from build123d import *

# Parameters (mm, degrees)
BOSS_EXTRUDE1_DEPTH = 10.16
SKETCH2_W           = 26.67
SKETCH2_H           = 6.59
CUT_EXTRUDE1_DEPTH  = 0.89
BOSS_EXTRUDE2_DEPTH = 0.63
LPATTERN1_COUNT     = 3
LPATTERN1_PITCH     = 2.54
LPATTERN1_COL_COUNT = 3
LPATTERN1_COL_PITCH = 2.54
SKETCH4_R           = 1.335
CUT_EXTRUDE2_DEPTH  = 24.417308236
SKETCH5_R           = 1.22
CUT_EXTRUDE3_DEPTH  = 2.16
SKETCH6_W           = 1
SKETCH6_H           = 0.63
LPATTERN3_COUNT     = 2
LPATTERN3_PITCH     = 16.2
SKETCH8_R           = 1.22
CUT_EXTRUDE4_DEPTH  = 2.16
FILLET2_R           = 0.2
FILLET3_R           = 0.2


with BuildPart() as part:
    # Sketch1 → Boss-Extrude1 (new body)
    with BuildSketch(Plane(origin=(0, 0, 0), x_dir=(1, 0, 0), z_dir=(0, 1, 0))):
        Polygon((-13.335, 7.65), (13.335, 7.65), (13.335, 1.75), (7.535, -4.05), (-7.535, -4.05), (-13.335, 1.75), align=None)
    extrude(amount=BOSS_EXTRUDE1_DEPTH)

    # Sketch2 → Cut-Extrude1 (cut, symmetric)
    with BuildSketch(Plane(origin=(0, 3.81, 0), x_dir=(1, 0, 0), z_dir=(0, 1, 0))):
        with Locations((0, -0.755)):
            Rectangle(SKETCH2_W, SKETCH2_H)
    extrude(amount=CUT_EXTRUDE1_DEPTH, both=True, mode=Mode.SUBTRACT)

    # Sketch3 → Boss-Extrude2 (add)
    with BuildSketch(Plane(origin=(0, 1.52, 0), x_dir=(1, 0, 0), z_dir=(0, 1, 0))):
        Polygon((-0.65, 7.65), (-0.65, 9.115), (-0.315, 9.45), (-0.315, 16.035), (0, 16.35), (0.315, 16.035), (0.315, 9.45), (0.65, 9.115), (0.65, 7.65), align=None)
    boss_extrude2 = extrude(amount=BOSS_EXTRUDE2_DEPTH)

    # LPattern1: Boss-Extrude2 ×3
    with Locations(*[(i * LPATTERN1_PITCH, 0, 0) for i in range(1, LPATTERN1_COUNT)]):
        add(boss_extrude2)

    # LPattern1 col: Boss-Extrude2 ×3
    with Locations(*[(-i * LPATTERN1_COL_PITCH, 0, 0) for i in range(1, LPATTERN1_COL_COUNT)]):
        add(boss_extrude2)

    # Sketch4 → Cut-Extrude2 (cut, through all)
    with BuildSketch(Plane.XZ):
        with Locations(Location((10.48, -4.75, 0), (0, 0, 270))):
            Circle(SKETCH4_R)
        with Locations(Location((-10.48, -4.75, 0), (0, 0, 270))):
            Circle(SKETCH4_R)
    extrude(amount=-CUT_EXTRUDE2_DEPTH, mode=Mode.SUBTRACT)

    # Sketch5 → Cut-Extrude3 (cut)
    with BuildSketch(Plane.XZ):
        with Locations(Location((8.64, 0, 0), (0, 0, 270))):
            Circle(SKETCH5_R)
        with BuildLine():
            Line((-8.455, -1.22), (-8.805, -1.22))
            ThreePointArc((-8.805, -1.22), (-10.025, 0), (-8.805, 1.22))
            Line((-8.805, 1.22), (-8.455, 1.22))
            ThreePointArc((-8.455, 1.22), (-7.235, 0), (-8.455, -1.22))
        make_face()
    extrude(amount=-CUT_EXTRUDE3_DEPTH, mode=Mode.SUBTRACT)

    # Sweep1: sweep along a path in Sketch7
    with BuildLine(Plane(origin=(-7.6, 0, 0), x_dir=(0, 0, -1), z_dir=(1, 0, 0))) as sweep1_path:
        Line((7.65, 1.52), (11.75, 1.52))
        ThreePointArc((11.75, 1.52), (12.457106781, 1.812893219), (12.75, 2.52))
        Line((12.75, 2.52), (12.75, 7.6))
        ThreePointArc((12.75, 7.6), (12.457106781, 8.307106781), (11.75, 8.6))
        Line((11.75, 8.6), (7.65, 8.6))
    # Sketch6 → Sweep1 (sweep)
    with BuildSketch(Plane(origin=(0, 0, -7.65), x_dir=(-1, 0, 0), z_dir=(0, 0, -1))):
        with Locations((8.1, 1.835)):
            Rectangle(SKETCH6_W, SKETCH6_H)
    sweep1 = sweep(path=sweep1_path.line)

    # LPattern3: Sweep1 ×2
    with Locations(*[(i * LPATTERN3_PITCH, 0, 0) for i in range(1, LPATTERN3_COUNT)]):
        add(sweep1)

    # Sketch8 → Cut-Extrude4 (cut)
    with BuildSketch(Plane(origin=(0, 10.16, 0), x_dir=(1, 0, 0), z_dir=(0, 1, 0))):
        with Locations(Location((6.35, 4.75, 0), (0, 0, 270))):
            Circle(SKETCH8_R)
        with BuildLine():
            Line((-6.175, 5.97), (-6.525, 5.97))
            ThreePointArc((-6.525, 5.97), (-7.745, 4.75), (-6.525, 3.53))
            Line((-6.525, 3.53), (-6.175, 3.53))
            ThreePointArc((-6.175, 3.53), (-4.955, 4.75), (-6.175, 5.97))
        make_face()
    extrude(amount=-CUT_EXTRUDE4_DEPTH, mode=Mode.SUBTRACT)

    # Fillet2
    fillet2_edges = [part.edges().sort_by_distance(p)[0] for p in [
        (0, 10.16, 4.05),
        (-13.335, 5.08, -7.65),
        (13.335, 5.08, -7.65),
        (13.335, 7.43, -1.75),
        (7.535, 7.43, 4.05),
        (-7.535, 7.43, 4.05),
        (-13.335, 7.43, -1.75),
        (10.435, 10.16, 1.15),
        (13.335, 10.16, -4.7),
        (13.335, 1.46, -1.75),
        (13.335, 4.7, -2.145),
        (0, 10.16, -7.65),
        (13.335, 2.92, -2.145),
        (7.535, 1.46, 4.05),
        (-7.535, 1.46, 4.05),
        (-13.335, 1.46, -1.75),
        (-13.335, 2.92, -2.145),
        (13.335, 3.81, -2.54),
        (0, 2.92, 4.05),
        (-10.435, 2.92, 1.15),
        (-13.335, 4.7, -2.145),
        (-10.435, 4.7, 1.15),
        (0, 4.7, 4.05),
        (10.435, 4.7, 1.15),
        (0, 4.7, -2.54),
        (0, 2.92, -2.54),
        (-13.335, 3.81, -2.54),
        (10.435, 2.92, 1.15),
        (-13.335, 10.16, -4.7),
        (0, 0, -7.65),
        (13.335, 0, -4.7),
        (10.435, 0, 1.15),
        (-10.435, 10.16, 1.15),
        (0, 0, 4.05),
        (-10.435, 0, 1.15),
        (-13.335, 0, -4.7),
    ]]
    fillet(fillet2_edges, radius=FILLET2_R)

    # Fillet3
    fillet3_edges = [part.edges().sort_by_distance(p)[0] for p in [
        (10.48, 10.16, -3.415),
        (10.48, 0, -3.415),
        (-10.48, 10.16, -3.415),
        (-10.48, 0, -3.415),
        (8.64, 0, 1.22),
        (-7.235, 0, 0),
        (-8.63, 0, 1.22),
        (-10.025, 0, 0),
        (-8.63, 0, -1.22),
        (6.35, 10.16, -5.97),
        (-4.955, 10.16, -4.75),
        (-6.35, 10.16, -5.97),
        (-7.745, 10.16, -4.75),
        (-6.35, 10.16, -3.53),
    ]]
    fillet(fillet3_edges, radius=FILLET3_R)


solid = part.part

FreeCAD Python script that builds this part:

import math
import FreeCAD as App
import Part
import Sketcher

V = App.Vector


def edges_at(feature, points):
    """Names of the edges that pass closest to the given points."""
    edges = feature.Shape.Edges
    near = lambda p: min(range(len(edges)), key=lambda i: edges[i].distToShape(Part.Vertex(*p))[0])
    return sorted({f"Edge{near(p) + 1}" for p in points})

doc = App.newDocument("Part")
params = doc.addObject("Spreadsheet::Sheet", "Params")
for row, (alias, value) in enumerate([
    ("sketch1_height", "5.9 mm"),
    ("sketch1_width", "26.67 mm"),
    ("sketch1_width2", "15.07 mm"),
    ("pad1_length", "10.16 mm"),
    ("sketch2_width", "26.67 mm"),
    ("sketch2_height", "6.59 mm"),
    ("pocket1_length", "1.78 mm"),
    ("sketch3_width", "1.3 mm"),
    ("pad2_length", "0.63 mm"),
    ("linearpattern_pitch", "2.54 mm"),
    ("linearpattern2_pitch", "2.54 mm"),
    ("sketch4_diameter", "2.67 mm"),
    ("sketch5_diameter", "2.44 mm"),
    ("sketch5_width", "0.35 mm"),
    ("pocket3_length", "2.16 mm"),
    ("sketch6_width", "1 mm"),
    ("sketch6_height", "0.63 mm"),
    ("sketch7_radius", "1 mm"),
    ("sketch7_height", "4.1 mm"),
    ("sketch7_width", "5.08 mm"),
    ("linearpattern3_pitch", "16.2 mm"),
    ("sketch8_diameter", "2.44 mm"),
    ("sketch8_width", "0.35 mm"),
    ("pocket4_length", "2.16 mm"),
    ("fillet_radius", "0.2 mm"),
    ("fillet2_radius", "0.2 mm"),
], start=1):
    params.set(f"A{row}", alias)
    params.set(f"B{row}", "=" + value)
    params.setAlias(f"B{row}", alias)

body = doc.addObject("PartDesign::Body", "Body")

# Sketch on XZ plane
sketch1 = doc.addObject("Sketcher::SketchObject", "Sketch")
body.addObject(sketch1)
sketch1.AttachmentSupport = (doc.XZ_Plane, [""])
sketch1.MapMode = "FlatFace"
sketch1.addGeometry(Part.LineSegment(V(13, -8, 0), V(-13, -8, 0)), False)
sketch1.addGeometry(Part.LineSegment(V(-13, -8, 0), V(-13, -2, 0)), False)
sketch1.addGeometry(Part.LineSegment(V(-13, -2, 0), V(-8, 4, 0)), False)
sketch1.addGeometry(Part.LineSegment(V(-8, 4, 0), V(8, 4, 0)), False)
sketch1.addGeometry(Part.LineSegment(V(8, 4, 0), V(13, -2, 0)), False)
sketch1.addGeometry(Part.LineSegment(V(13, -2, 0), V(13, -8, 0)), False)
sketch1.addConstraint(Sketcher.Constraint("Coincident", 0, 2, 1, 1))
sketch1.addConstraint(Sketcher.Constraint("Coincident", 1, 2, 2, 1))
sketch1.addConstraint(Sketcher.Constraint("Coincident", 2, 2, 3, 1))
sketch1.addConstraint(Sketcher.Constraint("Coincident", 3, 2, 4, 1))
sketch1.addConstraint(Sketcher.Constraint("Coincident", 4, 2, 5, 1))
sketch1.addConstraint(Sketcher.Constraint("Coincident", 5, 2, 0, 1))
sketch1.addConstraint(Sketcher.Constraint("Horizontal", 0))
sketch1.addConstraint(Sketcher.Constraint("Vertical", 1))
sketch1.addConstraint(Sketcher.Constraint("Horizontal", 3))
sketch1.addConstraint(Sketcher.Constraint("Vertical", 5))
sketch1.addConstraint(Sketcher.Constraint("Symmetric", 1, 2, 4, 2, -2))
sketch1.addConstraint(Sketcher.Constraint("Perpendicular", 2, 4))
sketch1.addConstraint(Sketcher.Constraint("Equal", 2, 4))
sketch1.addConstraint(Sketcher.Constraint("DistanceY", 1, 1, 1, 2, 5.9))
sketch1.addConstraint(Sketcher.Constraint("DistanceX", 0, 2, 0, 1, 26.67))
sketch1.addConstraint(Sketcher.Constraint("DistanceX", 3, 1, 3, 2, 15.07))
sketch1.addConstraint(Sketcher.Constraint("DistanceY", 0, 2, -1, 1, 7.65))
sketch1.setExpression("Constraints[13]", "Params.sketch1_height")
sketch1.setExpression("Constraints[14]", "Params.sketch1_width")
sketch1.setExpression("Constraints[15]", "Params.sketch1_width2")
pad1 = doc.addObject("PartDesign::Pad", "Pad")
body.addObject(pad1)
pad1.Profile = sketch1
pad1.setExpression("Length", "Params.pad1_length")
pad1.Reversed = True

# Sketch on XZ plane
sketch2 = doc.addObject("Sketcher::SketchObject", "Sketch001")
body.addObject(sketch2)
sketch2.AttachmentSupport = (doc.XZ_Plane, [""])
sketch2.MapMode = "FlatFace"
sketch2.AttachmentOffset = App.Placement(V(0, 0, -3.81), App.Rotation())
sketch2.addGeometry(Part.LineSegment(V(-13, -3, 0), V(-13, 4, 0)), False)
sketch2.addGeometry(Part.LineSegment(V(-13, 4, 0), V(13, 4, 0)), False)
sketch2.addGeometry(Part.LineSegment(V(13, 4, 0), V(13, -3, 0)), False)
sketch2.addGeometry(Part.LineSegment(V(13, -3, 0), V(-13, -3, 0)), False)
sketch2.addConstraint(Sketcher.Constraint("Coincident", 0, 2, 1, 1))
sketch2.addConstraint(Sketcher.Constraint("Coincident", 1, 2, 2, 1))
sketch2.addConstraint(Sketcher.Constraint("Coincident", 2, 2, 3, 1))
sketch2.addConstraint(Sketcher.Constraint("Coincident", 3, 2, 0, 1))
sketch2.addConstraint(Sketcher.Constraint("Vertical", 0))
sketch2.addConstraint(Sketcher.Constraint("Horizontal", 1))
sketch2.addConstraint(Sketcher.Constraint("Vertical", 2))
sketch2.addConstraint(Sketcher.Constraint("Horizontal", 3))
sketch2.addConstraint(Sketcher.Constraint("DistanceX", 1, 1, 1, 2, 26.67))
sketch2.addConstraint(Sketcher.Constraint("DistanceY", 0, 1, 0, 2, 6.59))
sketch2.addConstraint(Sketcher.Constraint("DistanceY", -1, 1, 0, 2, 4.05))
sketch2.addConstraint(Sketcher.Constraint("DistanceX", 0, 2, -1, 1, 13.335))
sketch2.setExpression("Constraints[8]", "Params.sketch2_width")
sketch2.setExpression("Constraints[9]", "Params.sketch2_height")
pocket1 = doc.addObject("PartDesign::Pocket", "Pocket")
body.addObject(pocket1)
pocket1.Profile = sketch2
pocket1.setExpression("Length", "Params.pocket1_length")
pocket1.Midplane = True

# Sketch on XZ plane
sketch3 = doc.addObject("Sketcher::SketchObject", "Sketch002")
body.addObject(sketch3)
sketch3.AttachmentSupport = (doc.XZ_Plane, [""])
sketch3.MapMode = "FlatFace"
sketch3.AttachmentOffset = App.Placement(V(0, 0, -1.52), App.Rotation())
sketch3.addGeometry(Part.LineSegment(V(-0.65, -9.12, 0), V(-0.65, -7.65, 0)), False)
sketch3.addGeometry(Part.LineSegment(V(-0.65, -7.65, 0), V(0.65, -7.65, 0)), False)
sketch3.addGeometry(Part.LineSegment(V(0.65, -7.65, 0), V(0.65, -9.12, 0)), False)
sketch3.addGeometry(Part.LineSegment(V(0.65, -9.12, 0), V(0.32, -9.45, 0)), False)
sketch3.addGeometry(Part.LineSegment(V(0.32, -9.45, 0), V(0.32, -16.04, 0)), False)
sketch3.addGeometry(Part.LineSegment(V(0.32, -16.04, 0), V(0, -16.35, 0)), False)
sketch3.addGeometry(Part.LineSegment(V(0, -16.35, 0), V(-0.32, -16.04, 0)), False)
sketch3.addGeometry(Part.LineSegment(V(-0.32, -16.04, 0), V(-0.32, -9.45, 0)), False)
sketch3.addGeometry(Part.LineSegment(V(-0.32, -9.45, 0), V(-0.65, -9.12, 0)), False)
sketch3.addConstraint(Sketcher.Constraint("Coincident", 0, 2, 1, 1))
sketch3.addConstraint(Sketcher.Constraint("Coincident", 1, 2, 2, 1))
sketch3.addConstraint(Sketcher.Constraint("Coincident", 2, 2, 3, 1))
sketch3.addConstraint(Sketcher.Constraint("Coincident", 3, 2, 4, 1))
sketch3.addConstraint(Sketcher.Constraint("Coincident", 4, 2, 5, 1))
sketch3.addConstraint(Sketcher.Constraint("Coincident", 5, 2, 6, 1))
sketch3.addConstraint(Sketcher.Constraint("Coincident", 6, 2, 7, 1))
sketch3.addConstraint(Sketcher.Constraint("Coincident", 7, 2, 8, 1))
sketch3.addConstraint(Sketcher.Constraint("Coincident", 8, 2, 0, 1))
sketch3.addConstraint(Sketcher.Constraint("Vertical", 0))
sketch3.addConstraint(Sketcher.Constraint("Horizontal", 1))
sketch3.addConstraint(Sketcher.Constraint("Vertical", 2))
sketch3.addConstraint(Sketcher.Constraint("Vertical", 4))
sketch3.addConstraint(Sketcher.Constraint("Vertical", 7))
sketch3.addConstraint(Sketcher.Constraint("Symmetric", 4, 2, 6, 2, -2))
sketch3.addConstraint(Sketcher.Constraint("Symmetric", 2, 2, 8, 2, -2))
sketch3.addConstraint(Sketcher.Constraint("PointOnObject", 5, 2, -2))
sketch3.addConstraint(Sketcher.Constraint("Parallel", 3, 5))
sketch3.addConstraint(Sketcher.Constraint("Perpendicular", 5, 6))
sketch3.addConstraint(Sketcher.Constraint("Parallel", 6, 8))
sketch3.addConstraint(Sketcher.Constraint("DistanceX", 1, 1, 1, 2, 1.3))
sketch3.addConstraint(Sketcher.Constraint("DistanceY", 3, 2, 1, 2, 1.8))
sketch3.addConstraint(Sketcher.Constraint("DistanceY", 5, 2, 3, 2, 6.9))
sketch3.addConstraint(Sketcher.Constraint("DistanceY", 0, 1, 0, 2, 1.465))
sketch3.addConstraint(Sketcher.Constraint("DistanceY", 0, 2, -1, 1, 7.65))
sketch3.setExpression("Constraints[20]", "Params.sketch3_width")
pad2 = doc.addObject("PartDesign::Pad", "Pad001")
body.addObject(pad2)
pad2.Profile = sketch3
pad2.setExpression("Length", "Params.pad2_length")
pad2.Reversed = True
doc.recompute()

linearpattern = doc.addObject("PartDesign::LinearPattern", "LinearPattern")
body.addObject(linearpattern)
linearpattern.Originals = [pad2]
linearpattern.Direction = (doc.X_Axis, [""])
linearpattern.Mode = "offset"
linearpattern.setExpression("Offset", "Params.linearpattern_pitch")
linearpattern.Occurrences = 3
body.Tip = linearpattern
doc.recompute()

linearpattern2 = doc.addObject("PartDesign::LinearPattern", "LinearPattern001")
body.addObject(linearpattern2)
linearpattern2.Originals = [pad2]
linearpattern2.Direction = (doc.X_Axis, [""])
linearpattern2.Mode = "offset"
linearpattern2.setExpression("Offset", "Params.linearpattern2_pitch")
linearpattern2.Occurrences = 3
linearpattern2.Reversed = True
body.Tip = linearpattern2

# Sketch on XZ plane
sketch4 = doc.addObject("Sketcher::SketchObject", "Sketch003")
body.addObject(sketch4)
sketch4.AttachmentSupport = (doc.XZ_Plane, [""])
sketch4.MapMode = "FlatFace"
sketch4.addGeometry(Part.Circle(V(10.5, -4.8, 0), V(0, 0, 1), 1.3), False)
sketch4.addGeometry(Part.Circle(V(-10.5, -4.8, 0), V(0, 0, 1), 1.3), False)
sketch4.addConstraint(Sketcher.Constraint("Equal", 0, 1))
sketch4.addConstraint(Sketcher.Constraint("Symmetric", 0, 3, 1, 3, -2))
sketch4.addConstraint(Sketcher.Constraint("Diameter", 0, 2.67))
sketch4.addConstraint(Sketcher.Constraint("DistanceX", -1, 1, 0, 3, 10.48))
sketch4.addConstraint(Sketcher.Constraint("DistanceY", 0, 3, -1, 1, 4.75))
sketch4.setExpression("Constraints[2]", "Params.sketch4_diameter")
pocket2 = doc.addObject("PartDesign::Pocket", "Pocket001")
body.addObject(pocket2)
pocket2.Profile = sketch4
pocket2.Type = "ThroughAll"

# Sketch on XZ plane
sketch5 = doc.addObject("Sketcher::SketchObject", "Sketch004")
body.addObject(sketch5)
sketch5.AttachmentSupport = (doc.XZ_Plane, [""])
sketch5.MapMode = "FlatFace"
sketch5.addGeometry(Part.Circle(V(8.64, 0, 0), V(0, 0, 1), 1.22), False)
sketch5.addGeometry(Part.LineSegment(V(-8.8, -1.22, 0), V(-8.46, -1.22, 0)), False)
sketch5.addGeometry(Part.ArcOfCircle(Part.Circle(V(-8.46, 0, 0), V(0, 0, 1), 1.22), math.radians(-90), math.radians(90)), False)
sketch5.addGeometry(Part.LineSegment(V(-8.46, 1.22, 0), V(-8.8, 1.22, 0)), False)
sketch5.addGeometry(Part.ArcOfCircle(Part.Circle(V(-8.8, 0, 0), V(0, 0, 1), 1.22), math.radians(90), math.radians(270)), False)
sketch5.addConstraint(Sketcher.Constraint("Tangent", 1, 2, 2, 1))
sketch5.addConstraint(Sketcher.Constraint("Tangent", 2, 2, 3, 1))
sketch5.addConstraint(Sketcher.Constraint("Tangent", 3, 2, 4, 1))
sketch5.addConstraint(Sketcher.Constraint("Tangent", 4, 2, 1, 1))
sketch5.addConstraint(Sketcher.Constraint("Horizontal", 1))
sketch5.addConstraint(Sketcher.Constraint("Horizontal", 3))
sketch5.addConstraint(Sketcher.Constraint("Equal", 0, 2))
sketch5.addConstraint(Sketcher.Constraint("PointOnObject", 0, 3, -1))
sketch5.addConstraint(Sketcher.Constraint("PointOnObject", 2, 3, -1))
sketch5.addConstraint(Sketcher.Constraint("Diameter", 0, 2.44))
sketch5.addConstraint(Sketcher.Constraint("DistanceX", 1, 1, 1, 2, 0.35))
sketch5.addConstraint(Sketcher.Constraint("DistanceX", -1, 1, 0, 3, 8.64))
sketch5.addConstraint(Sketcher.Constraint("DistanceX", 2, 3, -1, 1, 8.455))
sketch5.setExpression("Constraints[9]", "Params.sketch5_diameter")
sketch5.setExpression("Constraints[10]", "Params.sketch5_width")
pocket3 = doc.addObject("PartDesign::Pocket", "Pocket002")
body.addObject(pocket3)
pocket3.Profile = sketch5
pocket3.setExpression("Length", "Params.pocket3_length")

# Sketch on XY plane
sketch6 = doc.addObject("Sketcher::SketchObject", "Sketch005")
body.addObject(sketch6)
sketch6.AttachmentSupport = (doc.XY_Plane, [""])
sketch6.MapMode = "FlatFace"
sketch6.AttachmentOffset = App.Placement(V(0, 0, -7.65), App.Rotation())
sketch6.addGeometry(Part.LineSegment(V(-7.6, 2.1, 0), V(-7.6, 1.5, 0)), False)
sketch6.addGeometry(Part.LineSegment(V(-7.6, 1.5, 0), V(-8.6, 1.5, 0)), False)
sketch6.addGeometry(Part.LineSegment(V(-8.6, 1.5, 0), V(-8.6, 2.1, 0)), False)
sketch6.addGeometry(Part.LineSegment(V(-8.6, 2.1, 0), V(-7.6, 2.1, 0)), False)
sketch6.addConstraint(Sketcher.Constraint("Coincident", 0, 2, 1, 1))
sketch6.addConstraint(Sketcher.Constraint("Coincident", 1, 2, 2, 1))
sketch6.addConstraint(Sketcher.Constraint("Coincident", 2, 2, 3, 1))
sketch6.addConstraint(Sketcher.Constraint("Coincident", 3, 2, 0, 1))
sketch6.addConstraint(Sketcher.Constraint("Vertical", 0))
sketch6.addConstraint(Sketcher.Constraint("Horizontal", 1))
sketch6.addConstraint(Sketcher.Constraint("Vertical", 2))
sketch6.addConstraint(Sketcher.Constraint("Horizontal", 3))
sketch6.addConstraint(Sketcher.Constraint("DistanceX", 1, 2, 1, 1, 1.0))
sketch6.addConstraint(Sketcher.Constraint("DistanceY", 0, 2, 0, 1, 0.63))
sketch6.addConstraint(Sketcher.Constraint("DistanceX", 0, 2, -1, 1, 7.6))
sketch6.addConstraint(Sketcher.Constraint("DistanceY", -1, 1, 0, 2, 1.52))
sketch6.setExpression("Constraints[8]", "Params.sketch6_width")
sketch6.setExpression("Constraints[9]", "Params.sketch6_height")

# Sketch on YZ plane
sketch7 = doc.addObject("Sketcher::SketchObject", "Sketch006")
body.addObject(sketch7)
sketch7.AttachmentSupport = (doc.YZ_Plane, [""])
sketch7.MapMode = "FlatFace"
sketch7.AttachmentOffset = App.Placement(V(0, 0, -7.6), App.Rotation())
sketch7.addGeometry(Part.LineSegment(V(1.5, -7.7, 0), V(1.5, -11.8, 0)), False)
sketch7.addGeometry(Part.ArcOfCircle(Part.Circle(V(2.5, -11.7, 0), V(0, 0, 1), 1), math.radians(-180), math.radians(-90)), False)
sketch7.addGeometry(Part.LineSegment(V(2.5, -12.8, 0), V(7.6, -12.8, 0)), False)
sketch7.addGeometry(Part.ArcOfCircle(Part.Circle(V(7.6, -11.7, 0), V(0, 0, 1), 1), math.radians(-90), math.radians(0)), False)
sketch7.addGeometry(Part.LineSegment(V(8.6, -11.8, 0), V(8.6, -7.7, 0)), False)
sketch7.addConstraint(Sketcher.Constraint("Tangent", 0, 2, 1, 1))
sketch7.addConstraint(Sketcher.Constraint("Tangent", 1, 2, 2, 1))
sketch7.addConstraint(Sketcher.Constraint("Tangent", 2, 2, 3, 1))
sketch7.addConstraint(Sketcher.Constraint("Tangent", 3, 2, 4, 1))
sketch7.addConstraint(Sketcher.Constraint("Vertical", 0))
sketch7.addConstraint(Sketcher.Constraint("Horizontal", 2))
sketch7.addConstraint(Sketcher.Constraint("Vertical", 4))
sketch7.addConstraint(Sketcher.Constraint("Equal", 1, 3))
sketch7.addConstraint(Sketcher.Constraint("Horizontal", 0, 1, 4, 2))
sketch7.addConstraint(Sketcher.Constraint("Radius", 1, 1.0))
sketch7.addConstraint(Sketcher.Constraint("DistanceY", 0, 2, 0, 1, 4.1))
sketch7.addConstraint(Sketcher.Constraint("DistanceX", 2, 1, 2, 2, 5.08))
sketch7.addConstraint(Sketcher.Constraint("DistanceX", -1, 1, 3, 3, 7.6))
sketch7.addConstraint(Sketcher.Constraint("DistanceY", 1, 3, -1, 1, 11.75))
sketch7.setExpression("Constraints[9]", "Params.sketch7_radius")
sketch7.setExpression("Constraints[10]", "Params.sketch7_height")
sketch7.setExpression("Constraints[11]", "Params.sketch7_width")
doc.recompute()

additivepipe = doc.addObject("PartDesign::AdditivePipe", "AdditivePipe")
body.addObject(additivepipe)
additivepipe.Profile = sketch6
additivepipe.Spine = (sketch7, ["Edge1", "Edge2", "Edge3", "Edge4", "Edge5"])
doc.recompute()

linearpattern3 = doc.addObject("PartDesign::LinearPattern", "LinearPattern002")
body.addObject(linearpattern3)
linearpattern3.Originals = [additivepipe]
linearpattern3.Direction = (doc.X_Axis, [""])
linearpattern3.Mode = "offset"
linearpattern3.setExpression("Offset", "Params.linearpattern3_pitch")
linearpattern3.Occurrences = 2
body.Tip = linearpattern3

# Sketch on XZ plane
sketch8 = doc.addObject("Sketcher::SketchObject", "Sketch007")
body.addObject(sketch8)
sketch8.AttachmentSupport = (doc.XZ_Plane, [""])
sketch8.MapMode = "FlatFace"
sketch8.AttachmentOffset = App.Placement(V(0, 0, -10.16), App.Rotation())
sketch8.addGeometry(Part.Circle(V(6.35, -4.75, 0), V(0, 0, 1), 1.22), False)
sketch8.addGeometry(Part.LineSegment(V(-6.17, -5.97, 0), V(-6.53, -5.97, 0)), False)
sketch8.addGeometry(Part.ArcOfCircle(Part.Circle(V(-6.53, -4.75, 0), V(0, 0, 1), 1.22), math.radians(90), math.radians(270)), False)
sketch8.addGeometry(Part.LineSegment(V(-6.53, -3.53, 0), V(-6.17, -3.53, 0)), False)
sketch8.addGeometry(Part.ArcOfCircle(Part.Circle(V(-6.17, -4.75, 0), V(0, 0, 1), 1.22), math.radians(-90), math.radians(90)), False)
sketch8.addConstraint(Sketcher.Constraint("Tangent", 1, 2, 2, 2))
sketch8.addConstraint(Sketcher.Constraint("Tangent", 2, 1, 3, 1))
sketch8.addConstraint(Sketcher.Constraint("Tangent", 3, 2, 4, 2))
sketch8.addConstraint(Sketcher.Constraint("Tangent", 4, 1, 1, 1))
sketch8.addConstraint(Sketcher.Constraint("Horizontal", 1))
sketch8.addConstraint(Sketcher.Constraint("Horizontal", 3))
sketch8.addConstraint(Sketcher.Constraint("Equal", 0, 2))
sketch8.addConstraint(Sketcher.Constraint("Horizontal", 0, 3, 2, 3))
sketch8.addConstraint(Sketcher.Constraint("Diameter", 0, 2.44))
sketch8.addConstraint(Sketcher.Constraint("DistanceX", 1, 2, 1, 1, 0.35))
sketch8.addConstraint(Sketcher.Constraint("DistanceX", -1, 1, 0, 3, 6.35))
sketch8.addConstraint(Sketcher.Constraint("DistanceY", 0, 3, -1, 1, 4.75))
sketch8.addConstraint(Sketcher.Constraint("DistanceX", 2, 3, -1, 1, 6.525))
sketch8.setExpression("Constraints[8]", "Params.sketch8_diameter")
sketch8.setExpression("Constraints[9]", "Params.sketch8_width")
pocket4 = doc.addObject("PartDesign::Pocket", "Pocket003")
body.addObject(pocket4)
pocket4.Profile = sketch8
pocket4.setExpression("Length", "Params.pocket4_length")
pocket4.Reversed = True
doc.recompute()

fillet = doc.addObject("PartDesign::Fillet", "Fillet")
body.addObject(fillet)
fillet.Base = (pocket4, edges_at(pocket4, [
    (0, 10.16, 4.05),
    (-13.335, 5.08, -7.65),
    (13.335, 5.08, -7.65),
    (13.335, 7.43, -1.75),
    (7.535, 7.43, 4.05),
    (-7.535, 7.43, 4.05),
    (-13.335, 7.43, -1.75),
    (10.435, 10.16, 1.15),
    (13.335, 10.16, -4.7),
    (13.335, 1.46, -1.75),
    (13.335, 4.7, -2.145),
    (0, 10.16, -7.65),
    (13.335, 2.92, -2.145),
    (7.535, 1.46, 4.05),
    (-7.535, 1.46, 4.05),
    (-13.335, 1.46, -1.75),
    (-13.335, 2.92, -2.145),
    (13.335, 3.81, -2.54),
    (0, 2.92, 4.05),
    (-10.435, 2.92, 1.15),
    (-13.335, 4.7, -2.145),
    (-10.435, 4.7, 1.15),
    (0, 4.7, 4.05),
    (10.435, 4.7, 1.15),
    (0, 4.7, -2.54),
    (0, 2.92, -2.54),
    (-13.335, 3.81, -2.54),
    (10.435, 2.92, 1.15),
    (-13.335, 10.16, -4.7),
    (0, 0, -7.65),
    (13.335, 0, -4.7),
    (10.435, 0, 1.15),
    (-10.435, 10.16, 1.15),
    (0, 0, 4.05),
    (-10.435, 0, 1.15),
    (-13.335, 0, -4.7),
]))
fillet.setExpression("Radius", "Params.fillet_radius")
doc.recompute()

fillet2 = doc.addObject("PartDesign::Fillet", "Fillet001")
body.addObject(fillet2)
fillet2.Base = (fillet, edges_at(fillet, [
    (10.48, 10.16, -3.415),
    (10.48, 0, -3.415),
    (-10.48, 10.16, -3.415),
    (-10.48, 0, -3.415),
    (8.64, 0, 1.22),
    (-7.235, 0, 0),
    (-8.63, 0, 1.22),
    (-10.025, 0, 0),
    (-8.63, 0, -1.22),
    (6.35, 10.16, -5.97),
    (-4.955, 10.16, -4.75),
    (-6.35, 10.16, -5.97),
    (-7.745, 10.16, -4.75),
    (-6.35, 10.16, -3.53),
]))
fillet2.setExpression("Radius", "Params.fillet2_radius")

doc.recompute()
